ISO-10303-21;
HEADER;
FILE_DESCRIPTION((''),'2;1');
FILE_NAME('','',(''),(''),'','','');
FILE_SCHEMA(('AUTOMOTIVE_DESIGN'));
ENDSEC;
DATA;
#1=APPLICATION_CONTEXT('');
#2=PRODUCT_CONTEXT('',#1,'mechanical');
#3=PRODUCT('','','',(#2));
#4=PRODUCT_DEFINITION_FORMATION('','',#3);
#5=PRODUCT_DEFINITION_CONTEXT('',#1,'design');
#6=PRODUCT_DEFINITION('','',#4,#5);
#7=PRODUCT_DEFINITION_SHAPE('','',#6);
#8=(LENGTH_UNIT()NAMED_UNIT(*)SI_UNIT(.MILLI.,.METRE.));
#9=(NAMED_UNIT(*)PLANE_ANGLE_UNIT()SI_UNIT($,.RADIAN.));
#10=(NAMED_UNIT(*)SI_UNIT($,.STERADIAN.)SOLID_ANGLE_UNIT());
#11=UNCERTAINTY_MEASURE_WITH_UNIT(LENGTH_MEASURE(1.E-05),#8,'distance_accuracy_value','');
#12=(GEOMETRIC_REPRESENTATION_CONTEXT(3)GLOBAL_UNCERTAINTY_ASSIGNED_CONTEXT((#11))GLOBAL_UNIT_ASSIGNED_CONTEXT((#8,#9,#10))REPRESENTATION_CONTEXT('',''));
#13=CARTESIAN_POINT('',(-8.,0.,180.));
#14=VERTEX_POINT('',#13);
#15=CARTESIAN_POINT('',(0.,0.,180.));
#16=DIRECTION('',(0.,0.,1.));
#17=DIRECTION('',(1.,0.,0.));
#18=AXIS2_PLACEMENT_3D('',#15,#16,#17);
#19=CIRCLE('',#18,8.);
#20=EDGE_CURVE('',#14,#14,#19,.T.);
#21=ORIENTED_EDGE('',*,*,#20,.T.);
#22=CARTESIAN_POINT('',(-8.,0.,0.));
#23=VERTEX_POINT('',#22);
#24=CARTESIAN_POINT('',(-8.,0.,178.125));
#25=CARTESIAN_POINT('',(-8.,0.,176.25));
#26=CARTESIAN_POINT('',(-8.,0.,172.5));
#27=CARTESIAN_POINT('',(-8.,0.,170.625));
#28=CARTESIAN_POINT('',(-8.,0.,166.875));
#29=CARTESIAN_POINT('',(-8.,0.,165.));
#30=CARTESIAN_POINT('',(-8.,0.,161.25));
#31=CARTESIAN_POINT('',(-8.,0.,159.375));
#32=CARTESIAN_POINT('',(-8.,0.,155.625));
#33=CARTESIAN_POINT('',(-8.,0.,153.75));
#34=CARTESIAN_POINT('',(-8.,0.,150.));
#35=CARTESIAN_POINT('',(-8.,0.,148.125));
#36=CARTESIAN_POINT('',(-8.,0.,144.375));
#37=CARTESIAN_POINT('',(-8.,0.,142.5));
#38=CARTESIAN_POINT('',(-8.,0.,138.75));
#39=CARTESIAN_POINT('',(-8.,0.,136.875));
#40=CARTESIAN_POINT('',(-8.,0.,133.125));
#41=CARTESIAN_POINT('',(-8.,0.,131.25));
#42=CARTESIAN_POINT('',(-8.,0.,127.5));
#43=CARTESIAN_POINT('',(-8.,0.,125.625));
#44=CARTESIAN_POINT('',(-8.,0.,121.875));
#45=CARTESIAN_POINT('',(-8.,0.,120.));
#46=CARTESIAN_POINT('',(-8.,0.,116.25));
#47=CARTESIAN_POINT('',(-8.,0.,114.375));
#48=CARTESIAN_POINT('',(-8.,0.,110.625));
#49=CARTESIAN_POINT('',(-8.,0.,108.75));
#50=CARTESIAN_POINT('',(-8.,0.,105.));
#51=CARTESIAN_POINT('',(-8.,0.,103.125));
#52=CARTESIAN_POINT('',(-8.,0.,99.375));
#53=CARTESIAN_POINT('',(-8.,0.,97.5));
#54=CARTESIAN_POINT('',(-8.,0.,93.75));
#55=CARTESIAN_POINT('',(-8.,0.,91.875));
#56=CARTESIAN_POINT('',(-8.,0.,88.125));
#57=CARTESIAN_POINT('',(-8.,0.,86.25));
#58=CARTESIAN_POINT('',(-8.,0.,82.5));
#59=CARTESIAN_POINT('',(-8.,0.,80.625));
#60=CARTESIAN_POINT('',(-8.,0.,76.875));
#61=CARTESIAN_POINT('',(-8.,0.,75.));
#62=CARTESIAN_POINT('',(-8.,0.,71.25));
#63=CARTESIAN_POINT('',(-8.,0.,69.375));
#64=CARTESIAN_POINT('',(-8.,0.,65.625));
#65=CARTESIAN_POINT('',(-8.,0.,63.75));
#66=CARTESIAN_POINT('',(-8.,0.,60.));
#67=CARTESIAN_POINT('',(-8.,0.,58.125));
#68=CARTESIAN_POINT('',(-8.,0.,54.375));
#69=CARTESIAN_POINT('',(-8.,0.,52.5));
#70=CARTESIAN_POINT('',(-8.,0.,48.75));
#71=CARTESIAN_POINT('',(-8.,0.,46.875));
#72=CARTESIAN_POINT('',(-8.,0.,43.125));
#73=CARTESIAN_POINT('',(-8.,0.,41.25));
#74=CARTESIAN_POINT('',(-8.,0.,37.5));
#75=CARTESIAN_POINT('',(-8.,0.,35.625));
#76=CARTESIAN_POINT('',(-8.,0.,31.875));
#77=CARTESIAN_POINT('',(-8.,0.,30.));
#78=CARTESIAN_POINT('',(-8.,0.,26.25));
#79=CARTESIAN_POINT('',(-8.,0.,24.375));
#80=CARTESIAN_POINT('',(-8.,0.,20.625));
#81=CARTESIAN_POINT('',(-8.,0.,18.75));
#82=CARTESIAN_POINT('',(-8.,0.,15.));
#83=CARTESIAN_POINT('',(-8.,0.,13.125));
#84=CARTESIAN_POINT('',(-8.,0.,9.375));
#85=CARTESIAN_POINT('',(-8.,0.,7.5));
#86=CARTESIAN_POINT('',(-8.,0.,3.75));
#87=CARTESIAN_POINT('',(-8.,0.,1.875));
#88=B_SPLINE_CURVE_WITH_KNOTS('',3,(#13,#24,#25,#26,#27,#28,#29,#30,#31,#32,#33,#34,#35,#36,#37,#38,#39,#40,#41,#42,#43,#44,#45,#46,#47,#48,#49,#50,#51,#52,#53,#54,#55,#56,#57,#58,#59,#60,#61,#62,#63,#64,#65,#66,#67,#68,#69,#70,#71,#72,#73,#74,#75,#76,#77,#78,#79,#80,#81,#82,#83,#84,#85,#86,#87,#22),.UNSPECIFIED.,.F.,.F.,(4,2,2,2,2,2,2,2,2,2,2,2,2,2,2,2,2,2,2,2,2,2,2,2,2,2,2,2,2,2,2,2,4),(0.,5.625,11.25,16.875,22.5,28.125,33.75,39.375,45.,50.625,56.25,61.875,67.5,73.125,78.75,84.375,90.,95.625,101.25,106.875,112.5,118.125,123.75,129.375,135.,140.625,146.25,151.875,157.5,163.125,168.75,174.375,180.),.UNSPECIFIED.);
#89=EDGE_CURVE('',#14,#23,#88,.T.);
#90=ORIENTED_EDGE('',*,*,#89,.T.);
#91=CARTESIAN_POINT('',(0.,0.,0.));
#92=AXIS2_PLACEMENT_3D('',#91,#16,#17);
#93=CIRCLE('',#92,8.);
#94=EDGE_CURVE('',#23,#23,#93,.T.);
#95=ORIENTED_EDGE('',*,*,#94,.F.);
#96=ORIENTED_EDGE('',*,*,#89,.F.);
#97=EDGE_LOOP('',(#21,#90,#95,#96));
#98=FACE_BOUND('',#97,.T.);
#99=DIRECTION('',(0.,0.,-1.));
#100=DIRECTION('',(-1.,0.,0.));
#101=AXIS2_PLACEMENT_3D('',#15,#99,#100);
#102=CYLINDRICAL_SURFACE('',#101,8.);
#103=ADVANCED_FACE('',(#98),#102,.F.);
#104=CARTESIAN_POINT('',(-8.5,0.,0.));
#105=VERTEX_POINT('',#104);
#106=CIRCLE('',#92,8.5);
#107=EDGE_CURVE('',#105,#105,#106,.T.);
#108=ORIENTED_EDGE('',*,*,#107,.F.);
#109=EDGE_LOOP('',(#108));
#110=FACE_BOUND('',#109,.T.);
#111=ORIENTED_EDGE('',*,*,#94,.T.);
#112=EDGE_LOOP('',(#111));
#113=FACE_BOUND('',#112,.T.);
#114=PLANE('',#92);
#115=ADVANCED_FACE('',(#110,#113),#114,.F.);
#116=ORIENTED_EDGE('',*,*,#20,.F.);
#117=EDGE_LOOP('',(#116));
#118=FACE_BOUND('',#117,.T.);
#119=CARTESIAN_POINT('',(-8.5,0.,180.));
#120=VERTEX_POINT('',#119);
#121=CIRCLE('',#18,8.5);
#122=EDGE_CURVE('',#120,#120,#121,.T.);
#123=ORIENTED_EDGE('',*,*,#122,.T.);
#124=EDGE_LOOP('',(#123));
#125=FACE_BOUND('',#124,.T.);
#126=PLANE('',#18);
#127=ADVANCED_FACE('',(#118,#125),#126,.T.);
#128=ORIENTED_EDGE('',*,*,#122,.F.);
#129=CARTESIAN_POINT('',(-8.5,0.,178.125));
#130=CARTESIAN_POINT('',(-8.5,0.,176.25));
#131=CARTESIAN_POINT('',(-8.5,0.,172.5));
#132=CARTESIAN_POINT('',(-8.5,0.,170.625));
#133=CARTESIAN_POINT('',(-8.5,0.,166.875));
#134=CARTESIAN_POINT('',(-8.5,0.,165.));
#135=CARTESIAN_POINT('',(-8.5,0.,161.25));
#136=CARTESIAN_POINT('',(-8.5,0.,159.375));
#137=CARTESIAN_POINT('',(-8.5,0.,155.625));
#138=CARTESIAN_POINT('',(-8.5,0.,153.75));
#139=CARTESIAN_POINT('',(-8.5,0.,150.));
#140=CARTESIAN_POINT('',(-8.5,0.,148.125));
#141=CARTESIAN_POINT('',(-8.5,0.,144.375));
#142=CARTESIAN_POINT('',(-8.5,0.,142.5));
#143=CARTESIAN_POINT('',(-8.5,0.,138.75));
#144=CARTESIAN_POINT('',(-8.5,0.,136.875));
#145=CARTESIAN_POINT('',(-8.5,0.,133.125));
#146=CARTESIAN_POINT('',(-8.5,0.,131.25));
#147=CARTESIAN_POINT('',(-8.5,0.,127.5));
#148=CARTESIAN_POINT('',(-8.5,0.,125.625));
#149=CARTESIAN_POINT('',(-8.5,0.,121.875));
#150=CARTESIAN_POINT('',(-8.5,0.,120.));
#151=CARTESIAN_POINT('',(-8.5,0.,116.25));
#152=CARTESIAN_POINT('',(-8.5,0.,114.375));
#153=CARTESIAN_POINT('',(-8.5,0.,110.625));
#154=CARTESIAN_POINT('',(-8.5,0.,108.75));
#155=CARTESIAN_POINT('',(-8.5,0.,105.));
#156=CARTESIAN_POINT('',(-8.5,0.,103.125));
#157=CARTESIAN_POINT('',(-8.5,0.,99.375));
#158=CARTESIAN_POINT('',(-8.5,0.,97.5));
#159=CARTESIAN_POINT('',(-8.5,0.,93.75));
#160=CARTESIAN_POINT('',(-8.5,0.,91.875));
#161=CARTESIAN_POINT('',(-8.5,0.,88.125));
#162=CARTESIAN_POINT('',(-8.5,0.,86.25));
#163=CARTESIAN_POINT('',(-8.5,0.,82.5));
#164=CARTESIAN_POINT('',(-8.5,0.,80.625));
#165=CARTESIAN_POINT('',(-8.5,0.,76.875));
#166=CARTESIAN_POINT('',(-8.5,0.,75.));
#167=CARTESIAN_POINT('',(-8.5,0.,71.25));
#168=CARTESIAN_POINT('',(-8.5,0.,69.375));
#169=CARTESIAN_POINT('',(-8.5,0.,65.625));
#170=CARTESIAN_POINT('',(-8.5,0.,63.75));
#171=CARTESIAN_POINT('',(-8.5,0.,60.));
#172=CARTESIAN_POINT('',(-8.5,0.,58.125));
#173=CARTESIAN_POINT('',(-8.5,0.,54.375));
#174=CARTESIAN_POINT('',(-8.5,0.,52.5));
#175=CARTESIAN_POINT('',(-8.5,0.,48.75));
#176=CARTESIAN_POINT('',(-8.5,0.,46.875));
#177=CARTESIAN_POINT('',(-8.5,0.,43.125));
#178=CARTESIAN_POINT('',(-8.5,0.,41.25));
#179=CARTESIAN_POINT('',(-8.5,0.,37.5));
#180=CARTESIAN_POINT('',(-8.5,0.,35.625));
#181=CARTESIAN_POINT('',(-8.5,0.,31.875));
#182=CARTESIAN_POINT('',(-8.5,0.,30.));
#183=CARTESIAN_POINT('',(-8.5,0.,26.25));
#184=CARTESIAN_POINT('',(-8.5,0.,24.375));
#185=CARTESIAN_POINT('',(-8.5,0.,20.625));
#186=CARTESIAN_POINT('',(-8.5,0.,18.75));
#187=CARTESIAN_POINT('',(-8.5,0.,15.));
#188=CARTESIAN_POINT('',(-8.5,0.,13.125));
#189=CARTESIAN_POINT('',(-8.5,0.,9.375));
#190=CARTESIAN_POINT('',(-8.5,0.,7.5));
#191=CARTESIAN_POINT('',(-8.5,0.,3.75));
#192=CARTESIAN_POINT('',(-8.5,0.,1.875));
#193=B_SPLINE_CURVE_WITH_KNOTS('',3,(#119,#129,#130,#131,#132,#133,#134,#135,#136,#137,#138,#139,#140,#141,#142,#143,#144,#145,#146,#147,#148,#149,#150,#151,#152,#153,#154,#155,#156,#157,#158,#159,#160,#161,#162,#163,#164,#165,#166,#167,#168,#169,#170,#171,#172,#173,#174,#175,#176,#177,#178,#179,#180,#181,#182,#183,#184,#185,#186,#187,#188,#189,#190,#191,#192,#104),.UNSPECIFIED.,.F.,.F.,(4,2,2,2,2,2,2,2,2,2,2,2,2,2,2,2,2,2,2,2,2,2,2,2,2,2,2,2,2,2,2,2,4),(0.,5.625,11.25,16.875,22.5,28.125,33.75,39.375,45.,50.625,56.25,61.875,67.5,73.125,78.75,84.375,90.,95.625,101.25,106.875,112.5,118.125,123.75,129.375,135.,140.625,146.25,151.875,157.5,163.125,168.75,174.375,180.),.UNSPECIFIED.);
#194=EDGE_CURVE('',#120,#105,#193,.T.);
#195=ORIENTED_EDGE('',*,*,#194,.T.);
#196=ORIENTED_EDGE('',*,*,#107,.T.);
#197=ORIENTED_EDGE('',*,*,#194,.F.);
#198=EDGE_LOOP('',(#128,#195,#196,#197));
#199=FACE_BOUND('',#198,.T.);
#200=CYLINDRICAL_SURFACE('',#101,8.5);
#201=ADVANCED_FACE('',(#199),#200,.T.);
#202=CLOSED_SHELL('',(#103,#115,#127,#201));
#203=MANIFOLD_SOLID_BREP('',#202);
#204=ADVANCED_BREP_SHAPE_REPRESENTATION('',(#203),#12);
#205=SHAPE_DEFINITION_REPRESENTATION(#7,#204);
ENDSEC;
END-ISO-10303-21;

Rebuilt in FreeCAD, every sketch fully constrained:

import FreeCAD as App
import Part
import Sketcher

V = App.Vector
Q = App.Units.Quantity

doc = App.newDocument("Part")
body = doc.addObject("PartDesign::Body", "Body")

# Sketch on XY plane
sketch1 = doc.addObject("Sketcher::SketchObject", "Sketch")
body.addObject(sketch1)
sketch1.AttachmentSupport = (doc.XY_Plane, [""])
sketch1.MapMode = "FlatFace"
sketch1.addGeometry(Part.Circle(V(0, 0, 0), V(0, 0, 1), 8), False)
sketch1.addGeometry(Part.Circle(V(0, 0, 0), V(0, 0, 1), 8), False)
sketch1.addConstraint(Sketcher.Constraint("Coincident", 0, 3, -1, 1))
sketch1.addConstraint(Sketcher.Constraint("Coincident", 1, 3, -1, 1))
sketch1.addConstraint(Sketcher.Constraint("Diameter", 0, Q("17 mm")))
sketch1.addConstraint(Sketcher.Constraint("Diameter", 1, Q("16 mm")))
pad1 = doc.addObject("PartDesign::Pad", "Pad")
body.addObject(pad1)
pad1.Profile = sketch1
pad1.Length = 180

doc.recompute()
